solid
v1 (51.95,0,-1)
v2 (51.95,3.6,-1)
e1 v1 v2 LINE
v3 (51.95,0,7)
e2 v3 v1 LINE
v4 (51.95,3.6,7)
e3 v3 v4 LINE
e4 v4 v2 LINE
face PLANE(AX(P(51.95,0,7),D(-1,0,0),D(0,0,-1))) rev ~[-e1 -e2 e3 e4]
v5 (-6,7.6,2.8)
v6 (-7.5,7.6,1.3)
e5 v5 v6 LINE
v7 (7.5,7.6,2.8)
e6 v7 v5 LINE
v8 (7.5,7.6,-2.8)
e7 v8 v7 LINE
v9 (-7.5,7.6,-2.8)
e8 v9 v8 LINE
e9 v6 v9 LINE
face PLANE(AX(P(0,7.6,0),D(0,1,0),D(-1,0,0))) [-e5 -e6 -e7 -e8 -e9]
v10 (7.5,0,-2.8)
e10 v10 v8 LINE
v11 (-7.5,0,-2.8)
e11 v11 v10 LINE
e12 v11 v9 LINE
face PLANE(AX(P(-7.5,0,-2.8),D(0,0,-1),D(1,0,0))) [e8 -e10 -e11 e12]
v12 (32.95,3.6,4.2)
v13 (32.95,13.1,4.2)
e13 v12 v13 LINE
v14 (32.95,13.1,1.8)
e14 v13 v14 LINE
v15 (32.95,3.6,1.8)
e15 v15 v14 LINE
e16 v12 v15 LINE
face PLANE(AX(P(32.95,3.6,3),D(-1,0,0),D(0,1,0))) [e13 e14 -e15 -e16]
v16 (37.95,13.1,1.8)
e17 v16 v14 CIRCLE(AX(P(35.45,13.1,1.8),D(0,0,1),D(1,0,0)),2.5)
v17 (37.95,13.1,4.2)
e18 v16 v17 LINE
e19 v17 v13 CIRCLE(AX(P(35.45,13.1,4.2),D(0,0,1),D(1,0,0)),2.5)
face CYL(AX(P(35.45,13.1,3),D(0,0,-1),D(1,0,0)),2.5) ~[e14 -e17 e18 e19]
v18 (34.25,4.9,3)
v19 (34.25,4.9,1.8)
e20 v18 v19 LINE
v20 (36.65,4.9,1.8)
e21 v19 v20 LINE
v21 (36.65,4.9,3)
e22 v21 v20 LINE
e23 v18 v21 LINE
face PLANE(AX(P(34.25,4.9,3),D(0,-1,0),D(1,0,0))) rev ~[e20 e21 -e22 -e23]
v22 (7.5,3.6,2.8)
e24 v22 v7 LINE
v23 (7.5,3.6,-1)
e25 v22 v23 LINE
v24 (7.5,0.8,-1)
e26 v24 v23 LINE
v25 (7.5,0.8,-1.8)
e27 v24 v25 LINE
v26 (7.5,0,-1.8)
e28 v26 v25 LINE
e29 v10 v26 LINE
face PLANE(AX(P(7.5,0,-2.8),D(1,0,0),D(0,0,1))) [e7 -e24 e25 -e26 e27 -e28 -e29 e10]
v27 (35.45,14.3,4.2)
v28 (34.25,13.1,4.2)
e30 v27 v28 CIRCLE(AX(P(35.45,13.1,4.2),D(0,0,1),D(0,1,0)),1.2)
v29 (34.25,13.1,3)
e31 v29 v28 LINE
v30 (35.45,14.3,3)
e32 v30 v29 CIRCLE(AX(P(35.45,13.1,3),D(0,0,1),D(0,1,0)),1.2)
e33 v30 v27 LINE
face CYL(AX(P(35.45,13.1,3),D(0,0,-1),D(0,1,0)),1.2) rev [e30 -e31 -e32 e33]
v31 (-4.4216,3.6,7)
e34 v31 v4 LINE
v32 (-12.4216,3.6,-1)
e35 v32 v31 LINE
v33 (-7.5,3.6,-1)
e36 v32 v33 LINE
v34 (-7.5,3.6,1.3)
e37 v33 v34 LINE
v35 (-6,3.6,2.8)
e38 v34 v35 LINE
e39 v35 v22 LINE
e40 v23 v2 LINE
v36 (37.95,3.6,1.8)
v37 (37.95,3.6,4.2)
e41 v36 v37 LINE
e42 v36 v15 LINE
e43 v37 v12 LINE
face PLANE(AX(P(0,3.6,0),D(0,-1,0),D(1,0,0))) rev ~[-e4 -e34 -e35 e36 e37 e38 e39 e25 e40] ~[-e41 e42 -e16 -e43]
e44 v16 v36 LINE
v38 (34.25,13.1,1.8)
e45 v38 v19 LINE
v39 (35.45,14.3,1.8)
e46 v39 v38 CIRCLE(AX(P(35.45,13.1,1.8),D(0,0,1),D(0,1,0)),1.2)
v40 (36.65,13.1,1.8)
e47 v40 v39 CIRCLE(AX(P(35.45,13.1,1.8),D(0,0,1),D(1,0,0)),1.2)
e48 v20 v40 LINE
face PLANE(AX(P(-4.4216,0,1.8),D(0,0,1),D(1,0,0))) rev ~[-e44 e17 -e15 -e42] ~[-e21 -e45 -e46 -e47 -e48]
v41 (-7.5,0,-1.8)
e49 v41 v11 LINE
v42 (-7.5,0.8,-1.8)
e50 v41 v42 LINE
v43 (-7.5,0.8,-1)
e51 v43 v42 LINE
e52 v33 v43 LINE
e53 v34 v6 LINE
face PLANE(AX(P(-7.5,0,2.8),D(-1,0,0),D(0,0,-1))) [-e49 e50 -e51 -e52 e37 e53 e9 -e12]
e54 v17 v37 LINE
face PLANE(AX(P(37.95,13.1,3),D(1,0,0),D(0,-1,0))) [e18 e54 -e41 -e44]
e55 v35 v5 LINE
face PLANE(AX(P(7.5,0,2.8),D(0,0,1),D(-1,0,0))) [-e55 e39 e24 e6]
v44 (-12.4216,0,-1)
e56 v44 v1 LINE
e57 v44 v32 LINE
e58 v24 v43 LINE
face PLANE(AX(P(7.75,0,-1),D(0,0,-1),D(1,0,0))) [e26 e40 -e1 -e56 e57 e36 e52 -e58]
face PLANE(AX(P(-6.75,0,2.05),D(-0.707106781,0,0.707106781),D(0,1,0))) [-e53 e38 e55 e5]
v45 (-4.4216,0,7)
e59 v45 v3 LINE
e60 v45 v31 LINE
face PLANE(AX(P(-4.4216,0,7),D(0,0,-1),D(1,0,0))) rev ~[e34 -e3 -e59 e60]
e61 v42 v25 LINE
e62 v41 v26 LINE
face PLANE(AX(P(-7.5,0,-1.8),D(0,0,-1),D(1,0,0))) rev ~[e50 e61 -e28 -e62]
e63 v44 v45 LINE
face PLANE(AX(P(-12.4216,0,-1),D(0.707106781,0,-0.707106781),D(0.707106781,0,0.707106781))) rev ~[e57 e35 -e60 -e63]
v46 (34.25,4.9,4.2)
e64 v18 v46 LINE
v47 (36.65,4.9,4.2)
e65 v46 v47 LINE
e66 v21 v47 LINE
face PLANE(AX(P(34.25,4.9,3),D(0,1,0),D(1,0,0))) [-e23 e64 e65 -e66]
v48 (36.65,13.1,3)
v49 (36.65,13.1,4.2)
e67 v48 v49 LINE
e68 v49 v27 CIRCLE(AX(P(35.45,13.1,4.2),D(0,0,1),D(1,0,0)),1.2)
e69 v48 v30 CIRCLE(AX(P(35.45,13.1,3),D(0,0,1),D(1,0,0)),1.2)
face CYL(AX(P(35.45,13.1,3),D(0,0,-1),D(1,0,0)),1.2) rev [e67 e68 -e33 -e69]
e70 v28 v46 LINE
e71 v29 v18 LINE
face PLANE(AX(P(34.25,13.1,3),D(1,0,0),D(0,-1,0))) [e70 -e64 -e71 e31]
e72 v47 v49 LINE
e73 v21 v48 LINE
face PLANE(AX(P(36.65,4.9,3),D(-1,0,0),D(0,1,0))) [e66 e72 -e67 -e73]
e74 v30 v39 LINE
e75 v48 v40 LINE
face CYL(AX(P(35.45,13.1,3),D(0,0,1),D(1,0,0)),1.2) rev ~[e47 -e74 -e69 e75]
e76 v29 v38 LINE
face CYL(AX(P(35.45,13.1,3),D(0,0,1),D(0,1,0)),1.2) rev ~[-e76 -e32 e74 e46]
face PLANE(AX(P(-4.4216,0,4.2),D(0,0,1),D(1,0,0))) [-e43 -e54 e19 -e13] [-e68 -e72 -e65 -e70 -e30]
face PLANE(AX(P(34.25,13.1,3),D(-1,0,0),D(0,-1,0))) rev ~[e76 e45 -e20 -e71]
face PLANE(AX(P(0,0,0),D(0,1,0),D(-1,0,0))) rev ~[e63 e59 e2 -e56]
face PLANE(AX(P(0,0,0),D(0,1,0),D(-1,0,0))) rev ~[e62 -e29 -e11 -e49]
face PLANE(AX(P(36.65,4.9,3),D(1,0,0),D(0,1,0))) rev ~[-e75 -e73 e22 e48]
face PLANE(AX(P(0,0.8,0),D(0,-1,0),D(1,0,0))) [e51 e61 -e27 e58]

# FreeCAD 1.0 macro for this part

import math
import FreeCAD as App
import Part
import Sketcher
Q = App.Units.Quantity


def edges_at(feature, points):
    """Names of the edges that pass closest to the given points."""
    edges = feature.Shape.Edges
    near = lambda p: min(range(len(edges)), key=lambda i: edges[i].distToShape(Part.Vertex(*p))[0])
    return sorted({f"Edge{near(p) + 1}" for p in points})


def add_polygon(sketch, points):
    """Adds a closed chain of lines whose ends are joined by coincident constraints."""
    first, n = sketch.GeometryCount, len(points)
    for a, b in zip(points, points[1:] + points[:1]):
        sketch.addGeometry(Part.LineSegment(App.Vector(*a, 0), App.Vector(*b, 0)), False)
    for i in range(n):
        sketch.addConstraint(Sketcher.Constraint("Coincident", first + i, 2, first + (i + 1) % n, 1))

doc = App.newDocument("Part")
params = doc.addObject("Spreadsheet::Sheet", "Params")
for row, (alias, value) in enumerate([
    ("sketch1_width", "15 mm"),
    ("sketch1_height", "5.6 mm"),
    ("pad1_length", "7.6 mm"),
    ("chamfer_size", "1.5 mm"),
    ("sketch2_height", "8 mm"),
    ("pad2_length", "3.6 mm"),
    ("sketch3_radius", "2.5 mm"),
    ("sketch3_radius2", "1.2 mm"),
    ("sketch3_height", "9.5 mm"),
    ("pad3_length", "2.4 mm"),
    ("sketch4_width", "15 mm"),
    ("sketch4_height", "0.8 mm"),
    ("pocket1_length", "0.8 mm"),
], start=1):
    params.set(f"A{row}", alias)
    params.set(f"B{row}", "=" + value)
    params.setAlias(f"B{row}", alias)

body = doc.addObject("PartDesign::Body", "Body")

# Sketch on XZ plane
sketch1 = body.newObject("Sketcher::SketchObject", "Sketch")
sketch1.AttachmentSupport = (doc.getObject("XZ_Plane"), [""])
sketch1.MapMode = "FlatFace"
add_polygon(sketch1, [(-7.5, 2.8), (7.5, 2.8), (7.5, -2.8), (-7.5, -2.8)])  # lines 0-3
sketch1.addConstraint([
    Sketcher.Constraint("Horizontal", 0),
    Sketcher.Constraint("Vertical", 1),
    Sketcher.Constraint("Horizontal", 2),
    Sketcher.Constraint("Vertical", 3),
    Sketcher.Constraint("Symmetric", 0, 2, 2, 2, -1, 1),
    Sketcher.Constraint("DistanceX", 0, 1, 0, 2, Q("15 mm")),
    Sketcher.Constraint("DistanceY", 1, 2, 1, 1, Q("5.6 mm")),
])
sketch1.setExpression("Constraints[9]", "Params.sketch1_width")
sketch1.setExpression("Constraints[10]", "Params.sketch1_height")
pad1 = body.newObject("PartDesign::Pad", "Pad")
pad1.Profile = sketch1
pad1.setExpression("Length", "Params.pad1_length")
pad1.Reversed = True
doc.recompute()

chamfer = body.newObject("PartDesign::Chamfer", "Chamfer")
chamfer.Base = (pad1, edges_at(pad1, [(-7.5, 3.8, 2.8)]))
chamfer.setExpression("Size", "Params.chamfer_size")

# Sketch on XZ plane
sketch2 = body.newObject("Sketcher::SketchObject", "Sketch001")
sketch2.AttachmentSupport = (doc.getObject("XZ_Plane"), [""])
sketch2.MapMode = "FlatFace"
add_polygon(sketch2, [(51.95, -1), (51.95, 7), (-4.4216, 7), (-12.4216, -1)])  # lines 0-3
sketch2.addConstraint([
    Sketcher.Constraint("Vertical", 0),
    Sketcher.Constraint("Horizontal", 1),
    Sketcher.Constraint("Horizontal", 3),
    Sketcher.Constraint("DistanceY", 2, 2, -1, 1, Q("1 mm")),
    Sketcher.Constraint("DistanceY", 0, 1, 0, 2, Q("8 mm")),
    Sketcher.Constraint("Angle", 2, Q("-135 deg")),
    Sketcher.Constraint("DistanceX", -1, 1, 0, 2, Q("51.95 mm")),
    Sketcher.Constraint("DistanceX", 1, 2, 1, 1, Q("56.3716 mm")),
])
sketch2.setExpression("Constraints[8]", "Params.sketch2_height")
pad2 = body.newObject("PartDesign::Pad", "Pad001")
pad2.Profile = sketch2
pad2.setExpression("Length", "Params.pad2_length")
pad2.Reversed = True

# Sketch on XY plane
sketch3 = body.newObject("Sketcher::SketchObject", "Sketch002")
sketch3.AttachmentSupport = (doc.getObject("XY_Plane"), [""])
sketch3.MapMode = "FlatFace"
sketch3.AttachmentOffset = App.Placement(App.Vector(0, 0, 3), App.Rotation())
sketch3.addGeometry([
    Part.LineSegment(App.Vector(32.95, 3.6, 0), App.Vector(37.95, 3.6, 0)),  # 0
    Part.LineSegment(App.Vector(37.95, 3.6, 0), App.Vector(37.95, 13.1, 0)),  # 1
    Part.ArcOfCircle(Part.Circle(App.Vector(35.45, 13.1, 0), App.Vector(0, 0, 1), 2.5), math.radians(0), math.radians(180)),  # 2
    Part.LineSegment(App.Vector(32.95, 13.1, 0), App.Vector(32.95, 3.6, 0)),  # 3
    Part.ArcOfCircle(Part.Circle(App.Vector(35.45, 13.1, 0), App.Vector(0, 0, 1), 1.2), math.radians(0), math.radians(180)),  # 4
    Part.LineSegment(App.Vector(36.65, 13.1, 0), App.Vector(36.65, 4.9, 0)),  # 5
    Part.LineSegment(App.Vector(36.65, 4.9, 0), App.Vector(34.25, 4.9, 0)),  # 6
    Part.LineSegment(App.Vector(34.25, 4.9, 0), App.Vector(34.25, 13.1, 0)),  # 7
], False)
sketch3.addConstraint([
    Sketcher.Constraint("Coincident", 0, 2, 1, 1),
    Sketcher.Constraint("Tangent", 1, 2, 2, 1),
    Sketcher.Constraint("Tangent", 2, 2, 3, 1),
    Sketcher.Constraint("Coincident", 3, 2, 0, 1),
    Sketcher.Constraint("Tangent", 4, 1, 5, 1),
    Sketcher.Constraint("Coincident", 5, 2, 6, 1),
    Sketcher.Constraint("Coincident", 6, 2, 7, 1),
    Sketcher.Constraint("Tangent", 7, 2, 4, 2),
    Sketcher.Constraint("Horizontal", 0),
    Sketcher.Constraint("Vertical", 1),
    Sketcher.Constraint("Vertical", 3),
    Sketcher.Constraint("Vertical", 5),
    Sketcher.Constraint("Horizontal", 6),
    Sketcher.Constraint("Vertical", 7),
    Sketcher.Constraint("Coincident", 4, 3, 2, 3),
    Sketcher.Constraint("Radius", 2, Q("2.5 mm")),
    Sketcher.Constraint("Radius", 4, Q("1.2 mm")),
    Sketcher.Constraint("DistanceY", 0, 2, 5, 2, Q("1.3 mm")),
    Sketcher.Constraint("DistanceY", 1, 1, 1, 2, Q("9.5 mm")),
    Sketcher.Constraint("DistanceY", -1, 1, 2, 3, Q("13.1 mm")),
    Sketcher.Constraint("DistanceX", -1, 1, 2, 3, Q("35.45 mm")),
])
sketch3.setExpression("Constraints[15]", "Params.sketch3_radius")
sketch3.setExpression("Constraints[16]", "Params.sketch3_radius2")
sketch3.setExpression("Constraints[18]", "Params.sketch3_height")
pad3 = body.newObject("PartDesign::Pad", "Pad002")
pad3.Profile = sketch3
pad3.setExpression("Length", "Params.pad3_length")
pad3.Midplane = True

# Sketch on XZ plane
sketch4 = body.newObject("Sketcher::SketchObject", "Sketch003")
sketch4.AttachmentSupport = (doc.getObject("XZ_Plane"), [""])
sketch4.MapMode = "FlatFace"
add_polygon(sketch4, [(7.5, -1.8), (7.5, -1), (-7.5, -1), (-7.5, -1.8)])  # lines 0-3
sketch4.addConstraint([
    Sketcher.Constraint("Vertical", 0),
    Sketcher.Constraint("Horizontal", 1),
    Sketcher.Constraint("Vertical", 2),
    Sketcher.Constraint("Horizontal", 3),
    Sketcher.Constraint("DistanceX", 1, 2, 1, 1, Q("15 mm")),
    Sketcher.Constraint("DistanceY", 0, 2, -1, 1, Q("1 mm")),
    Sketcher.Constraint("DistanceY", 0, 1, 0, 2, Q("0.8 mm")),
    Sketcher.Constraint("DistanceX", -1, 1, 0, 2, Q("7.5 mm")),
])
sketch4.setExpression("Constraints[8]", "Params.sketch4_width")
sketch4.setExpression("Constraints[10]", "Params.sketch4_height")
pocket1 = body.newObject("PartDesign::Pocket", "Pocket")
pocket1.Profile = sketch4
pocket1.setExpression("Length", "Params.pocket1_length")

doc.recompute()
